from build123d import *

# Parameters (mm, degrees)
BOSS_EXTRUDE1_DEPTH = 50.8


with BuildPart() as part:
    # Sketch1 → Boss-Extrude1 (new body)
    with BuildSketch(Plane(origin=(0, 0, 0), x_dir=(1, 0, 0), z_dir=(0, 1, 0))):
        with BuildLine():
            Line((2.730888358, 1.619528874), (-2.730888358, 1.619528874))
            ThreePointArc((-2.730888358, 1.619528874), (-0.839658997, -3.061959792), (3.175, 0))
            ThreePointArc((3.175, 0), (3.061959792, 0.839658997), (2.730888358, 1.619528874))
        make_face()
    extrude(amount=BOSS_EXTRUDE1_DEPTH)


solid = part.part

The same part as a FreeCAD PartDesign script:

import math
import FreeCAD as App
import Part
import Sketcher
Q = App.Units.Quantity

doc = App.newDocument("Part")
body = doc.addObject("PartDesign::Body", "Body")

sketch1 = body.newObject("Sketcher::SketchObject", "Sketch")
sketch1.AttachmentSupport = (doc.getObject("XZ_Plane"), [""])
sketch1.MapMode = "FlatFace"
sketch1.addGeometry([
    Part.LineSegment(App.Vector(2.7, -1.6, 0), App.Vector(-2.7, -1.6, 0)),
    Part.ArcOfCircle(Part.Circle(App.Vector(0, 0, 0), App.Vector(0, 0, 1), 3.2), math.radians(0), math.radians(211)),
    Part.ArcOfCircle(Part.Circle(App.Vector(0, 0, 0), App.Vector(0, 0, 1), 3.2), math.radians(-31), math.radians(0)),
], False)
sketch1.addConstraint([
    Sketcher.Constraint("Coincident", 0, 2, 1, 2),
    Sketcher.Constraint("Tangent", 1, 1, 2, 2),
    Sketcher.Constraint("Coincident", 2, 1, 0, 1),
    Sketcher.Constraint("Horizontal", 0),
    Sketcher.Constraint("Coincident", 1, 3, -1, 1),
    Sketcher.Constraint("Equal", 1, 2),
    Sketcher.Constraint("PointOnObject", 1, 1, -1),
    Sketcher.Constraint("Radius", 1, Q("0.125 in")),
    Sketcher.Constraint("DistanceX", 0, 2, 0, 1, 5.461777),
])
pad1 = body.newObject("PartDesign::Pad", "Pad")
pad1.Profile = sketch1
pad1.Length = Q("2 in")
pad1.Reversed = True

doc.recompute()
